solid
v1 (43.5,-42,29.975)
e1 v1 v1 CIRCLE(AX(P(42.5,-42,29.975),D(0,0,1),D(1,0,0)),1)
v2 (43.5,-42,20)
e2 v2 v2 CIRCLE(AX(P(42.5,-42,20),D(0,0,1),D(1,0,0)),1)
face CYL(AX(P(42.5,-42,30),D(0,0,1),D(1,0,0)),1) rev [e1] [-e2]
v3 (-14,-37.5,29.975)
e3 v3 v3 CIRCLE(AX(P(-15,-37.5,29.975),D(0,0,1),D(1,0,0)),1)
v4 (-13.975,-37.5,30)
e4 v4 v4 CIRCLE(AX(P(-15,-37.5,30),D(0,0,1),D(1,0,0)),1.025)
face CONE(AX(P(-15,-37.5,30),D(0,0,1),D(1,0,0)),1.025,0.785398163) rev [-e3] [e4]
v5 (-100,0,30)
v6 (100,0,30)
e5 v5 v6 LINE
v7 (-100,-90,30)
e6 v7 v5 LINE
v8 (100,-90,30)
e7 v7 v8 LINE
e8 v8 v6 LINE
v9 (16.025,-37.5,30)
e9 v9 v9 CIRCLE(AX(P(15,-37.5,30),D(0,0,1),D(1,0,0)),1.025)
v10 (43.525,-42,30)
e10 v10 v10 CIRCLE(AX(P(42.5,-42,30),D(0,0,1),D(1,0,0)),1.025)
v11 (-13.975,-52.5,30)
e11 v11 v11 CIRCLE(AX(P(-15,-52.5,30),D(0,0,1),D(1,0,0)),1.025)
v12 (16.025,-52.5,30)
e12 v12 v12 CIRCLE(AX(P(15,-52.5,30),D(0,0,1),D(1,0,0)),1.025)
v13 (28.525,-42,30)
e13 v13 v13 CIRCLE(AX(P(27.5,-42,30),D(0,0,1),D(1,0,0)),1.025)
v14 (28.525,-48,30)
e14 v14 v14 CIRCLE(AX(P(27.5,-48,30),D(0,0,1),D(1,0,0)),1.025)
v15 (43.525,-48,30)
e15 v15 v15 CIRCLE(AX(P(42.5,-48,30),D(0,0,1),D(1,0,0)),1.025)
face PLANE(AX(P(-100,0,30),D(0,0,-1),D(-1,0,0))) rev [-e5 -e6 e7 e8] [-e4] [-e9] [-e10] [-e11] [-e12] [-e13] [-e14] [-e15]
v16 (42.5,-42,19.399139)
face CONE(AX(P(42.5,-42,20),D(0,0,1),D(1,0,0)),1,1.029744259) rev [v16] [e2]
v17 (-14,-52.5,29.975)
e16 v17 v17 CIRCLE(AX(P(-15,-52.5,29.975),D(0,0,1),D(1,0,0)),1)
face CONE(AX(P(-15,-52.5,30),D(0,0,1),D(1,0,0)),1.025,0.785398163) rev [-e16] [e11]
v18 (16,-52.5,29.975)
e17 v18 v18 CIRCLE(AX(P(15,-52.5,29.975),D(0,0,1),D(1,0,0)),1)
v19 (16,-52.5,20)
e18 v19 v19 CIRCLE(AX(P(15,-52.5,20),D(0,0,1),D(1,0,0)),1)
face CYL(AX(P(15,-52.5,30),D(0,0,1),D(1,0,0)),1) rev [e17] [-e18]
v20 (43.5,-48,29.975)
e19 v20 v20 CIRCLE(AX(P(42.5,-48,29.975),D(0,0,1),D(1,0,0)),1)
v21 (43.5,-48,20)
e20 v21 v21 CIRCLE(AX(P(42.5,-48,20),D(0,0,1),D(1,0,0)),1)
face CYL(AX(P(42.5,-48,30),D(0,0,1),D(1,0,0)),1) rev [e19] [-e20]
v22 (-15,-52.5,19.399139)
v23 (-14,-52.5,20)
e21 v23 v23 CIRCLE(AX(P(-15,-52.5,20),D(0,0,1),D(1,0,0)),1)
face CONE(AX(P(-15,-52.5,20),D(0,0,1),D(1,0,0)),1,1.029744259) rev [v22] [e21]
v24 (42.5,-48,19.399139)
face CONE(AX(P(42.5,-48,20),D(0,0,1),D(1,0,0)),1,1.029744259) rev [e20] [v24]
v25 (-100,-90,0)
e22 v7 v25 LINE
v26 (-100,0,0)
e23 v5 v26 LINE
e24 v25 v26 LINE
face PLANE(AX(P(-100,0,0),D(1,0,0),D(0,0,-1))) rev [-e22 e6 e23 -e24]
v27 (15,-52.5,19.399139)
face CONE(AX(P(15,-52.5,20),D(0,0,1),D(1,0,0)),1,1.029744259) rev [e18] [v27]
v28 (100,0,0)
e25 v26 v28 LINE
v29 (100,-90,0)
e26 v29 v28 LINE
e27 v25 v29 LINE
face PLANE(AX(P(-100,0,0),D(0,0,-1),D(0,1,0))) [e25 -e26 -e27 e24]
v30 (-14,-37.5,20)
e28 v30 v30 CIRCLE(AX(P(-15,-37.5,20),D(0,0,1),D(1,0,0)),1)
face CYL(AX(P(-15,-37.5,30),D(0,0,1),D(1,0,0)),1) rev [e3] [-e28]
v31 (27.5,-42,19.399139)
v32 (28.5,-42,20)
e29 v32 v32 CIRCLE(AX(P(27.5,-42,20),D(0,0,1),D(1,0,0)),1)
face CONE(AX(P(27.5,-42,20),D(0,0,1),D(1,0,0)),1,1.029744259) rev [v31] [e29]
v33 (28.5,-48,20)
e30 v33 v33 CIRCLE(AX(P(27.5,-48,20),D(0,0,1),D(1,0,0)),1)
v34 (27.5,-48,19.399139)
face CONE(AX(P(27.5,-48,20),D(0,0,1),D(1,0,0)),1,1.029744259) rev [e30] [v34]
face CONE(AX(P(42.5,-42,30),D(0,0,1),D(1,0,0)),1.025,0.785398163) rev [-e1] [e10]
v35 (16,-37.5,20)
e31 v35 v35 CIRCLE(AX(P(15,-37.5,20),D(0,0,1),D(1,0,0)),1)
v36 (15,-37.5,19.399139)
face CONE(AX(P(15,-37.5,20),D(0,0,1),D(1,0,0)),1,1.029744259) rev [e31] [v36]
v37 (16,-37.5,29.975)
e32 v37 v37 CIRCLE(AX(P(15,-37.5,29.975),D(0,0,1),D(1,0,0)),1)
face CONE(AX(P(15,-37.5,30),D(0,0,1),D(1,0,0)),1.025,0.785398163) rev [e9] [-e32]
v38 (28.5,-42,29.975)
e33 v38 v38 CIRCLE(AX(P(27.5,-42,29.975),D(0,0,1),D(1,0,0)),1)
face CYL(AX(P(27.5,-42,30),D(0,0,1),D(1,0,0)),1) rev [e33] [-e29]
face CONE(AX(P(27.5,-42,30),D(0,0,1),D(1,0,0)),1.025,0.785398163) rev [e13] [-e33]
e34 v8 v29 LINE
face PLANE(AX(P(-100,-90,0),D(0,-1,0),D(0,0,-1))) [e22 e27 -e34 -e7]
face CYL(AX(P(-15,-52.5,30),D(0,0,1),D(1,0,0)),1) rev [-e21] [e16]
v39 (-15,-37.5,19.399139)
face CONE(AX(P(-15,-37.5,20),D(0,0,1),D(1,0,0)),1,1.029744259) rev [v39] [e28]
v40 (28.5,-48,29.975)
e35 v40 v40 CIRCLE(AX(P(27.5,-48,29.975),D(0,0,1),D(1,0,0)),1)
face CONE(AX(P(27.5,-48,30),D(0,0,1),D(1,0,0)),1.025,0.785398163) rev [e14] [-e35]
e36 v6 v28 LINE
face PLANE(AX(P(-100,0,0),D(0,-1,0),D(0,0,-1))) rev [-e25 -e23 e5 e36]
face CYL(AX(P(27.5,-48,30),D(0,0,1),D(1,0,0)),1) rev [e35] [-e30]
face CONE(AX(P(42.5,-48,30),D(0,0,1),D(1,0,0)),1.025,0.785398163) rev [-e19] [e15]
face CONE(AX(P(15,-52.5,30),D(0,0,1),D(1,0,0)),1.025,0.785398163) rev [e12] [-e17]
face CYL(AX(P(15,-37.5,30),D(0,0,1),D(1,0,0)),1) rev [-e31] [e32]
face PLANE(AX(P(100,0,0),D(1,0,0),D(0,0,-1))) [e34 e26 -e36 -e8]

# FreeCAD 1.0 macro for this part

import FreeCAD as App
import Part
import Sketcher

V = App.Vector
Q = App.Units.Quantity


def add_polygon(sketch, points):
    """Adds a closed chain of lines whose ends are joined by coincident constraints."""
    first, n = sketch.GeometryCount, len(points)
    for a, b in zip(points, points[1:] + points[:1]):
        sketch.addGeometry(Part.LineSegment(App.Vector(*a, 0), App.Vector(*b, 0)), False)
    for i in range(n):
        sketch.addConstraint(Sketcher.Constraint("Coincident", first + i, 2, first + (i + 1) % n, 1))

doc = App.newDocument("Part")
params = doc.addObject("Spreadsheet::Sheet", "Params")
for row, (alias, value) in enumerate([
    ("sketch1_width", "90 mm"),
    ("sketch1_height", "30 mm"),
    ("pad1_length", "100 mm"),
    ("pad1_length2", "100 mm"),
    ("sketch2_diameter", "2 mm"),
    ("hole_diameter", "2 mm"),
    ("hole_depth", "10 mm"),
    ("hole_csink_diameter", "2.05 mm"),
    ("sketch3_diameter", "2 mm"),
    ("hole2_diameter", "2 mm"),
    ("hole2_depth", "10 mm"),
    ("hole2_csink_diameter", "2.05 mm"),
], start=1):
    params.set(f"A{row}", alias)
    params.set(f"B{row}", "=" + value)
    params.setAlias(f"B{row}", alias)

body = doc.addObject("PartDesign::Body", "Body")

sketch1 = body.newObject("Sketcher::SketchObject", "Sketch")
sketch1.AttachmentSupport = (doc.getObject("YZ_Plane"), [""])
sketch1.MapMode = "FlatFace"
add_polygon(sketch1, [(-90, 30), (-90, 0), (0, 0), (0, 30)])
sketch1.addConstraint([
    Sketcher.Constraint("Vertical", 0),
    Sketcher.Constraint("Horizontal", 1),
    Sketcher.Constraint("Vertical", 2),
    Sketcher.Constraint("Horizontal", 3),
    Sketcher.Constraint("Coincident", 1, 2, -1, 1),
    Sketcher.Constraint("DistanceX", 1, 1, 1, 2, Q("90 mm")),
    Sketcher.Constraint("DistanceY", 0, 2, 0, 1, Q("30 mm")),
])
sketch1.setExpression("Constraints[9]", "Params.sketch1_width")
sketch1.setExpression("Constraints[10]", "Params.sketch1_height")
pad1 = body.newObject("PartDesign::Pad", "Pad")
pad1.Profile = sketch1
pad1.Type = "TwoLengths"
pad1.setExpression("Length", "Params.pad1_length")
pad1.setExpression("Length2", "Params.pad1_length2")

sketch2 = body.newObject("Sketcher::SketchObject", "Sketch001")
sketch2.AttachmentSupport = (doc.getObject("XY_Plane"), [""])
sketch2.MapMode = "FlatFace"
sketch2.AttachmentOffset = App.Placement(V(0, 0, 30), App.Rotation())
sketch2.addGeometry([
    Part.Circle(V(15, -52.5, 0), V(0, 0, 1), 1),
    Part.Circle(V(-15, -37.5, 0), V(0, 0, 1), 1),
    Part.Circle(V(-15, -52.5, 0), V(0, 0, 1), 1),
    Part.Circle(V(15, -37.5, 0), V(0, 0, 1), 1),
], False)
sketch2.addConstraint([
    Sketcher.Constraint("Equal", 0, 1),
    Sketcher.Constraint("Equal", 1, 2),
    Sketcher.Constraint("Equal", 2, 3),
    Sketcher.Constraint("Symmetric", 0, 3, 2, 3, -2),
    Sketcher.Constraint("Symmetric", 1, 3, 3, 3, -2),
    Sketcher.Constraint("Vertical", 1, 3, 2, 3),
    Sketcher.Constraint("Diameter", 0, Q("2 mm")),
    Sketcher.Constraint("DistanceX", -1, 1, 0, 3, Q("15 mm")),
    Sketcher.Constraint("DistanceY", 0, 3, 1, 3, Q("15 mm")),
    Sketcher.Constraint("DistanceY", 0, 3, -1, 1, Q("52.5 mm")),
])
sketch2.setExpression("Constraints[6]", "Params.sketch2_diameter")
doc.recompute()
hole = body.newObject("PartDesign::Hole", "Hole")
hole.Profile = sketch2
hole.ThreadType = "None"
hole.setExpression("Diameter", "Params.hole_diameter")
hole.DepthType = "Dimension"
hole.setExpression("Depth", "Params.hole_depth")
hole.DrillPoint = "Angled"
hole.DrillPointAngle = 118
hole.HoleCutType = "Countersink"
hole.setExpression("HoleCutDiameter", "Params.hole_csink_diameter")
hole.HoleCutCountersinkAngle = 90

sketch3 = body.newObject("Sketcher::SketchObject", "Sketch002")
sketch3.AttachmentSupport = (doc.getObject("XY_Plane"), [""])
sketch3.MapMode = "FlatFace"
sketch3.AttachmentOffset = App.Placement(V(0, 0, 30), App.Rotation())
sketch3.addGeometry([
    Part.Circle(V(42.5, -42, 0), V(0, 0, 1), 1),
    Part.Circle(V(27.5, -42, 0), V(0, 0, 1), 1),
    Part.Circle(V(27.5, -48, 0), V(0, 0, 1), 1),
    Part.Circle(V(42.5, -48, 0), V(0, 0, 1), 1),
], False)
sketch3.addConstraint([
    Sketcher.Constraint("Equal", 0, 1),
    Sketcher.Constraint("Equal", 1, 2),
    Sketcher.Constraint("Equal", 2, 3),
    Sketcher.Constraint("Horizontal", 0, 3, 1, 3),
    Sketcher.Constraint("Horizontal", 2, 3, 3, 3),
    Sketcher.Constraint("Vertical", 1, 3, 2, 3),
    Sketcher.Constraint("Vertical", 0, 3, 3, 3),
    Sketcher.Constraint("Diameter", 0, Q("2 mm")),
    Sketcher.Constraint("DistanceY", 0, 3, -1, 1, Q("42 mm")),
    Sketcher.Constraint("DistanceY", 2, 3, -1, 1, Q("48 mm")),
    Sketcher.Constraint("DistanceX", 1, 3, 0, 3, Q("15 mm")),
    Sketcher.Constraint("DistanceX", -1, 1, 0, 3, Q("42.5 mm")),
])
sketch3.setExpression("Constraints[7]", "Params.sketch3_diameter")
doc.recompute()
hole2 = body.newObject("PartDesign::Hole", "Hole001")
hole2.Profile = sketch3
hole2.ThreadType = "None"
hole2.setExpression("Diameter", "Params.hole2_diameter")
hole2.DepthType = "Dimension"
hole2.setExpression("Depth", "Params.hole2_depth")
hole2.DrillPoint = "Angled"
hole2.DrillPointAngle = 118
hole2.HoleCutType = "Countersink"
hole2.setExpression("HoleCutDiameter", "Params.hole2_csink_diameter")
hole2.HoleCutCountersinkAngle = 90

doc.recompute()
